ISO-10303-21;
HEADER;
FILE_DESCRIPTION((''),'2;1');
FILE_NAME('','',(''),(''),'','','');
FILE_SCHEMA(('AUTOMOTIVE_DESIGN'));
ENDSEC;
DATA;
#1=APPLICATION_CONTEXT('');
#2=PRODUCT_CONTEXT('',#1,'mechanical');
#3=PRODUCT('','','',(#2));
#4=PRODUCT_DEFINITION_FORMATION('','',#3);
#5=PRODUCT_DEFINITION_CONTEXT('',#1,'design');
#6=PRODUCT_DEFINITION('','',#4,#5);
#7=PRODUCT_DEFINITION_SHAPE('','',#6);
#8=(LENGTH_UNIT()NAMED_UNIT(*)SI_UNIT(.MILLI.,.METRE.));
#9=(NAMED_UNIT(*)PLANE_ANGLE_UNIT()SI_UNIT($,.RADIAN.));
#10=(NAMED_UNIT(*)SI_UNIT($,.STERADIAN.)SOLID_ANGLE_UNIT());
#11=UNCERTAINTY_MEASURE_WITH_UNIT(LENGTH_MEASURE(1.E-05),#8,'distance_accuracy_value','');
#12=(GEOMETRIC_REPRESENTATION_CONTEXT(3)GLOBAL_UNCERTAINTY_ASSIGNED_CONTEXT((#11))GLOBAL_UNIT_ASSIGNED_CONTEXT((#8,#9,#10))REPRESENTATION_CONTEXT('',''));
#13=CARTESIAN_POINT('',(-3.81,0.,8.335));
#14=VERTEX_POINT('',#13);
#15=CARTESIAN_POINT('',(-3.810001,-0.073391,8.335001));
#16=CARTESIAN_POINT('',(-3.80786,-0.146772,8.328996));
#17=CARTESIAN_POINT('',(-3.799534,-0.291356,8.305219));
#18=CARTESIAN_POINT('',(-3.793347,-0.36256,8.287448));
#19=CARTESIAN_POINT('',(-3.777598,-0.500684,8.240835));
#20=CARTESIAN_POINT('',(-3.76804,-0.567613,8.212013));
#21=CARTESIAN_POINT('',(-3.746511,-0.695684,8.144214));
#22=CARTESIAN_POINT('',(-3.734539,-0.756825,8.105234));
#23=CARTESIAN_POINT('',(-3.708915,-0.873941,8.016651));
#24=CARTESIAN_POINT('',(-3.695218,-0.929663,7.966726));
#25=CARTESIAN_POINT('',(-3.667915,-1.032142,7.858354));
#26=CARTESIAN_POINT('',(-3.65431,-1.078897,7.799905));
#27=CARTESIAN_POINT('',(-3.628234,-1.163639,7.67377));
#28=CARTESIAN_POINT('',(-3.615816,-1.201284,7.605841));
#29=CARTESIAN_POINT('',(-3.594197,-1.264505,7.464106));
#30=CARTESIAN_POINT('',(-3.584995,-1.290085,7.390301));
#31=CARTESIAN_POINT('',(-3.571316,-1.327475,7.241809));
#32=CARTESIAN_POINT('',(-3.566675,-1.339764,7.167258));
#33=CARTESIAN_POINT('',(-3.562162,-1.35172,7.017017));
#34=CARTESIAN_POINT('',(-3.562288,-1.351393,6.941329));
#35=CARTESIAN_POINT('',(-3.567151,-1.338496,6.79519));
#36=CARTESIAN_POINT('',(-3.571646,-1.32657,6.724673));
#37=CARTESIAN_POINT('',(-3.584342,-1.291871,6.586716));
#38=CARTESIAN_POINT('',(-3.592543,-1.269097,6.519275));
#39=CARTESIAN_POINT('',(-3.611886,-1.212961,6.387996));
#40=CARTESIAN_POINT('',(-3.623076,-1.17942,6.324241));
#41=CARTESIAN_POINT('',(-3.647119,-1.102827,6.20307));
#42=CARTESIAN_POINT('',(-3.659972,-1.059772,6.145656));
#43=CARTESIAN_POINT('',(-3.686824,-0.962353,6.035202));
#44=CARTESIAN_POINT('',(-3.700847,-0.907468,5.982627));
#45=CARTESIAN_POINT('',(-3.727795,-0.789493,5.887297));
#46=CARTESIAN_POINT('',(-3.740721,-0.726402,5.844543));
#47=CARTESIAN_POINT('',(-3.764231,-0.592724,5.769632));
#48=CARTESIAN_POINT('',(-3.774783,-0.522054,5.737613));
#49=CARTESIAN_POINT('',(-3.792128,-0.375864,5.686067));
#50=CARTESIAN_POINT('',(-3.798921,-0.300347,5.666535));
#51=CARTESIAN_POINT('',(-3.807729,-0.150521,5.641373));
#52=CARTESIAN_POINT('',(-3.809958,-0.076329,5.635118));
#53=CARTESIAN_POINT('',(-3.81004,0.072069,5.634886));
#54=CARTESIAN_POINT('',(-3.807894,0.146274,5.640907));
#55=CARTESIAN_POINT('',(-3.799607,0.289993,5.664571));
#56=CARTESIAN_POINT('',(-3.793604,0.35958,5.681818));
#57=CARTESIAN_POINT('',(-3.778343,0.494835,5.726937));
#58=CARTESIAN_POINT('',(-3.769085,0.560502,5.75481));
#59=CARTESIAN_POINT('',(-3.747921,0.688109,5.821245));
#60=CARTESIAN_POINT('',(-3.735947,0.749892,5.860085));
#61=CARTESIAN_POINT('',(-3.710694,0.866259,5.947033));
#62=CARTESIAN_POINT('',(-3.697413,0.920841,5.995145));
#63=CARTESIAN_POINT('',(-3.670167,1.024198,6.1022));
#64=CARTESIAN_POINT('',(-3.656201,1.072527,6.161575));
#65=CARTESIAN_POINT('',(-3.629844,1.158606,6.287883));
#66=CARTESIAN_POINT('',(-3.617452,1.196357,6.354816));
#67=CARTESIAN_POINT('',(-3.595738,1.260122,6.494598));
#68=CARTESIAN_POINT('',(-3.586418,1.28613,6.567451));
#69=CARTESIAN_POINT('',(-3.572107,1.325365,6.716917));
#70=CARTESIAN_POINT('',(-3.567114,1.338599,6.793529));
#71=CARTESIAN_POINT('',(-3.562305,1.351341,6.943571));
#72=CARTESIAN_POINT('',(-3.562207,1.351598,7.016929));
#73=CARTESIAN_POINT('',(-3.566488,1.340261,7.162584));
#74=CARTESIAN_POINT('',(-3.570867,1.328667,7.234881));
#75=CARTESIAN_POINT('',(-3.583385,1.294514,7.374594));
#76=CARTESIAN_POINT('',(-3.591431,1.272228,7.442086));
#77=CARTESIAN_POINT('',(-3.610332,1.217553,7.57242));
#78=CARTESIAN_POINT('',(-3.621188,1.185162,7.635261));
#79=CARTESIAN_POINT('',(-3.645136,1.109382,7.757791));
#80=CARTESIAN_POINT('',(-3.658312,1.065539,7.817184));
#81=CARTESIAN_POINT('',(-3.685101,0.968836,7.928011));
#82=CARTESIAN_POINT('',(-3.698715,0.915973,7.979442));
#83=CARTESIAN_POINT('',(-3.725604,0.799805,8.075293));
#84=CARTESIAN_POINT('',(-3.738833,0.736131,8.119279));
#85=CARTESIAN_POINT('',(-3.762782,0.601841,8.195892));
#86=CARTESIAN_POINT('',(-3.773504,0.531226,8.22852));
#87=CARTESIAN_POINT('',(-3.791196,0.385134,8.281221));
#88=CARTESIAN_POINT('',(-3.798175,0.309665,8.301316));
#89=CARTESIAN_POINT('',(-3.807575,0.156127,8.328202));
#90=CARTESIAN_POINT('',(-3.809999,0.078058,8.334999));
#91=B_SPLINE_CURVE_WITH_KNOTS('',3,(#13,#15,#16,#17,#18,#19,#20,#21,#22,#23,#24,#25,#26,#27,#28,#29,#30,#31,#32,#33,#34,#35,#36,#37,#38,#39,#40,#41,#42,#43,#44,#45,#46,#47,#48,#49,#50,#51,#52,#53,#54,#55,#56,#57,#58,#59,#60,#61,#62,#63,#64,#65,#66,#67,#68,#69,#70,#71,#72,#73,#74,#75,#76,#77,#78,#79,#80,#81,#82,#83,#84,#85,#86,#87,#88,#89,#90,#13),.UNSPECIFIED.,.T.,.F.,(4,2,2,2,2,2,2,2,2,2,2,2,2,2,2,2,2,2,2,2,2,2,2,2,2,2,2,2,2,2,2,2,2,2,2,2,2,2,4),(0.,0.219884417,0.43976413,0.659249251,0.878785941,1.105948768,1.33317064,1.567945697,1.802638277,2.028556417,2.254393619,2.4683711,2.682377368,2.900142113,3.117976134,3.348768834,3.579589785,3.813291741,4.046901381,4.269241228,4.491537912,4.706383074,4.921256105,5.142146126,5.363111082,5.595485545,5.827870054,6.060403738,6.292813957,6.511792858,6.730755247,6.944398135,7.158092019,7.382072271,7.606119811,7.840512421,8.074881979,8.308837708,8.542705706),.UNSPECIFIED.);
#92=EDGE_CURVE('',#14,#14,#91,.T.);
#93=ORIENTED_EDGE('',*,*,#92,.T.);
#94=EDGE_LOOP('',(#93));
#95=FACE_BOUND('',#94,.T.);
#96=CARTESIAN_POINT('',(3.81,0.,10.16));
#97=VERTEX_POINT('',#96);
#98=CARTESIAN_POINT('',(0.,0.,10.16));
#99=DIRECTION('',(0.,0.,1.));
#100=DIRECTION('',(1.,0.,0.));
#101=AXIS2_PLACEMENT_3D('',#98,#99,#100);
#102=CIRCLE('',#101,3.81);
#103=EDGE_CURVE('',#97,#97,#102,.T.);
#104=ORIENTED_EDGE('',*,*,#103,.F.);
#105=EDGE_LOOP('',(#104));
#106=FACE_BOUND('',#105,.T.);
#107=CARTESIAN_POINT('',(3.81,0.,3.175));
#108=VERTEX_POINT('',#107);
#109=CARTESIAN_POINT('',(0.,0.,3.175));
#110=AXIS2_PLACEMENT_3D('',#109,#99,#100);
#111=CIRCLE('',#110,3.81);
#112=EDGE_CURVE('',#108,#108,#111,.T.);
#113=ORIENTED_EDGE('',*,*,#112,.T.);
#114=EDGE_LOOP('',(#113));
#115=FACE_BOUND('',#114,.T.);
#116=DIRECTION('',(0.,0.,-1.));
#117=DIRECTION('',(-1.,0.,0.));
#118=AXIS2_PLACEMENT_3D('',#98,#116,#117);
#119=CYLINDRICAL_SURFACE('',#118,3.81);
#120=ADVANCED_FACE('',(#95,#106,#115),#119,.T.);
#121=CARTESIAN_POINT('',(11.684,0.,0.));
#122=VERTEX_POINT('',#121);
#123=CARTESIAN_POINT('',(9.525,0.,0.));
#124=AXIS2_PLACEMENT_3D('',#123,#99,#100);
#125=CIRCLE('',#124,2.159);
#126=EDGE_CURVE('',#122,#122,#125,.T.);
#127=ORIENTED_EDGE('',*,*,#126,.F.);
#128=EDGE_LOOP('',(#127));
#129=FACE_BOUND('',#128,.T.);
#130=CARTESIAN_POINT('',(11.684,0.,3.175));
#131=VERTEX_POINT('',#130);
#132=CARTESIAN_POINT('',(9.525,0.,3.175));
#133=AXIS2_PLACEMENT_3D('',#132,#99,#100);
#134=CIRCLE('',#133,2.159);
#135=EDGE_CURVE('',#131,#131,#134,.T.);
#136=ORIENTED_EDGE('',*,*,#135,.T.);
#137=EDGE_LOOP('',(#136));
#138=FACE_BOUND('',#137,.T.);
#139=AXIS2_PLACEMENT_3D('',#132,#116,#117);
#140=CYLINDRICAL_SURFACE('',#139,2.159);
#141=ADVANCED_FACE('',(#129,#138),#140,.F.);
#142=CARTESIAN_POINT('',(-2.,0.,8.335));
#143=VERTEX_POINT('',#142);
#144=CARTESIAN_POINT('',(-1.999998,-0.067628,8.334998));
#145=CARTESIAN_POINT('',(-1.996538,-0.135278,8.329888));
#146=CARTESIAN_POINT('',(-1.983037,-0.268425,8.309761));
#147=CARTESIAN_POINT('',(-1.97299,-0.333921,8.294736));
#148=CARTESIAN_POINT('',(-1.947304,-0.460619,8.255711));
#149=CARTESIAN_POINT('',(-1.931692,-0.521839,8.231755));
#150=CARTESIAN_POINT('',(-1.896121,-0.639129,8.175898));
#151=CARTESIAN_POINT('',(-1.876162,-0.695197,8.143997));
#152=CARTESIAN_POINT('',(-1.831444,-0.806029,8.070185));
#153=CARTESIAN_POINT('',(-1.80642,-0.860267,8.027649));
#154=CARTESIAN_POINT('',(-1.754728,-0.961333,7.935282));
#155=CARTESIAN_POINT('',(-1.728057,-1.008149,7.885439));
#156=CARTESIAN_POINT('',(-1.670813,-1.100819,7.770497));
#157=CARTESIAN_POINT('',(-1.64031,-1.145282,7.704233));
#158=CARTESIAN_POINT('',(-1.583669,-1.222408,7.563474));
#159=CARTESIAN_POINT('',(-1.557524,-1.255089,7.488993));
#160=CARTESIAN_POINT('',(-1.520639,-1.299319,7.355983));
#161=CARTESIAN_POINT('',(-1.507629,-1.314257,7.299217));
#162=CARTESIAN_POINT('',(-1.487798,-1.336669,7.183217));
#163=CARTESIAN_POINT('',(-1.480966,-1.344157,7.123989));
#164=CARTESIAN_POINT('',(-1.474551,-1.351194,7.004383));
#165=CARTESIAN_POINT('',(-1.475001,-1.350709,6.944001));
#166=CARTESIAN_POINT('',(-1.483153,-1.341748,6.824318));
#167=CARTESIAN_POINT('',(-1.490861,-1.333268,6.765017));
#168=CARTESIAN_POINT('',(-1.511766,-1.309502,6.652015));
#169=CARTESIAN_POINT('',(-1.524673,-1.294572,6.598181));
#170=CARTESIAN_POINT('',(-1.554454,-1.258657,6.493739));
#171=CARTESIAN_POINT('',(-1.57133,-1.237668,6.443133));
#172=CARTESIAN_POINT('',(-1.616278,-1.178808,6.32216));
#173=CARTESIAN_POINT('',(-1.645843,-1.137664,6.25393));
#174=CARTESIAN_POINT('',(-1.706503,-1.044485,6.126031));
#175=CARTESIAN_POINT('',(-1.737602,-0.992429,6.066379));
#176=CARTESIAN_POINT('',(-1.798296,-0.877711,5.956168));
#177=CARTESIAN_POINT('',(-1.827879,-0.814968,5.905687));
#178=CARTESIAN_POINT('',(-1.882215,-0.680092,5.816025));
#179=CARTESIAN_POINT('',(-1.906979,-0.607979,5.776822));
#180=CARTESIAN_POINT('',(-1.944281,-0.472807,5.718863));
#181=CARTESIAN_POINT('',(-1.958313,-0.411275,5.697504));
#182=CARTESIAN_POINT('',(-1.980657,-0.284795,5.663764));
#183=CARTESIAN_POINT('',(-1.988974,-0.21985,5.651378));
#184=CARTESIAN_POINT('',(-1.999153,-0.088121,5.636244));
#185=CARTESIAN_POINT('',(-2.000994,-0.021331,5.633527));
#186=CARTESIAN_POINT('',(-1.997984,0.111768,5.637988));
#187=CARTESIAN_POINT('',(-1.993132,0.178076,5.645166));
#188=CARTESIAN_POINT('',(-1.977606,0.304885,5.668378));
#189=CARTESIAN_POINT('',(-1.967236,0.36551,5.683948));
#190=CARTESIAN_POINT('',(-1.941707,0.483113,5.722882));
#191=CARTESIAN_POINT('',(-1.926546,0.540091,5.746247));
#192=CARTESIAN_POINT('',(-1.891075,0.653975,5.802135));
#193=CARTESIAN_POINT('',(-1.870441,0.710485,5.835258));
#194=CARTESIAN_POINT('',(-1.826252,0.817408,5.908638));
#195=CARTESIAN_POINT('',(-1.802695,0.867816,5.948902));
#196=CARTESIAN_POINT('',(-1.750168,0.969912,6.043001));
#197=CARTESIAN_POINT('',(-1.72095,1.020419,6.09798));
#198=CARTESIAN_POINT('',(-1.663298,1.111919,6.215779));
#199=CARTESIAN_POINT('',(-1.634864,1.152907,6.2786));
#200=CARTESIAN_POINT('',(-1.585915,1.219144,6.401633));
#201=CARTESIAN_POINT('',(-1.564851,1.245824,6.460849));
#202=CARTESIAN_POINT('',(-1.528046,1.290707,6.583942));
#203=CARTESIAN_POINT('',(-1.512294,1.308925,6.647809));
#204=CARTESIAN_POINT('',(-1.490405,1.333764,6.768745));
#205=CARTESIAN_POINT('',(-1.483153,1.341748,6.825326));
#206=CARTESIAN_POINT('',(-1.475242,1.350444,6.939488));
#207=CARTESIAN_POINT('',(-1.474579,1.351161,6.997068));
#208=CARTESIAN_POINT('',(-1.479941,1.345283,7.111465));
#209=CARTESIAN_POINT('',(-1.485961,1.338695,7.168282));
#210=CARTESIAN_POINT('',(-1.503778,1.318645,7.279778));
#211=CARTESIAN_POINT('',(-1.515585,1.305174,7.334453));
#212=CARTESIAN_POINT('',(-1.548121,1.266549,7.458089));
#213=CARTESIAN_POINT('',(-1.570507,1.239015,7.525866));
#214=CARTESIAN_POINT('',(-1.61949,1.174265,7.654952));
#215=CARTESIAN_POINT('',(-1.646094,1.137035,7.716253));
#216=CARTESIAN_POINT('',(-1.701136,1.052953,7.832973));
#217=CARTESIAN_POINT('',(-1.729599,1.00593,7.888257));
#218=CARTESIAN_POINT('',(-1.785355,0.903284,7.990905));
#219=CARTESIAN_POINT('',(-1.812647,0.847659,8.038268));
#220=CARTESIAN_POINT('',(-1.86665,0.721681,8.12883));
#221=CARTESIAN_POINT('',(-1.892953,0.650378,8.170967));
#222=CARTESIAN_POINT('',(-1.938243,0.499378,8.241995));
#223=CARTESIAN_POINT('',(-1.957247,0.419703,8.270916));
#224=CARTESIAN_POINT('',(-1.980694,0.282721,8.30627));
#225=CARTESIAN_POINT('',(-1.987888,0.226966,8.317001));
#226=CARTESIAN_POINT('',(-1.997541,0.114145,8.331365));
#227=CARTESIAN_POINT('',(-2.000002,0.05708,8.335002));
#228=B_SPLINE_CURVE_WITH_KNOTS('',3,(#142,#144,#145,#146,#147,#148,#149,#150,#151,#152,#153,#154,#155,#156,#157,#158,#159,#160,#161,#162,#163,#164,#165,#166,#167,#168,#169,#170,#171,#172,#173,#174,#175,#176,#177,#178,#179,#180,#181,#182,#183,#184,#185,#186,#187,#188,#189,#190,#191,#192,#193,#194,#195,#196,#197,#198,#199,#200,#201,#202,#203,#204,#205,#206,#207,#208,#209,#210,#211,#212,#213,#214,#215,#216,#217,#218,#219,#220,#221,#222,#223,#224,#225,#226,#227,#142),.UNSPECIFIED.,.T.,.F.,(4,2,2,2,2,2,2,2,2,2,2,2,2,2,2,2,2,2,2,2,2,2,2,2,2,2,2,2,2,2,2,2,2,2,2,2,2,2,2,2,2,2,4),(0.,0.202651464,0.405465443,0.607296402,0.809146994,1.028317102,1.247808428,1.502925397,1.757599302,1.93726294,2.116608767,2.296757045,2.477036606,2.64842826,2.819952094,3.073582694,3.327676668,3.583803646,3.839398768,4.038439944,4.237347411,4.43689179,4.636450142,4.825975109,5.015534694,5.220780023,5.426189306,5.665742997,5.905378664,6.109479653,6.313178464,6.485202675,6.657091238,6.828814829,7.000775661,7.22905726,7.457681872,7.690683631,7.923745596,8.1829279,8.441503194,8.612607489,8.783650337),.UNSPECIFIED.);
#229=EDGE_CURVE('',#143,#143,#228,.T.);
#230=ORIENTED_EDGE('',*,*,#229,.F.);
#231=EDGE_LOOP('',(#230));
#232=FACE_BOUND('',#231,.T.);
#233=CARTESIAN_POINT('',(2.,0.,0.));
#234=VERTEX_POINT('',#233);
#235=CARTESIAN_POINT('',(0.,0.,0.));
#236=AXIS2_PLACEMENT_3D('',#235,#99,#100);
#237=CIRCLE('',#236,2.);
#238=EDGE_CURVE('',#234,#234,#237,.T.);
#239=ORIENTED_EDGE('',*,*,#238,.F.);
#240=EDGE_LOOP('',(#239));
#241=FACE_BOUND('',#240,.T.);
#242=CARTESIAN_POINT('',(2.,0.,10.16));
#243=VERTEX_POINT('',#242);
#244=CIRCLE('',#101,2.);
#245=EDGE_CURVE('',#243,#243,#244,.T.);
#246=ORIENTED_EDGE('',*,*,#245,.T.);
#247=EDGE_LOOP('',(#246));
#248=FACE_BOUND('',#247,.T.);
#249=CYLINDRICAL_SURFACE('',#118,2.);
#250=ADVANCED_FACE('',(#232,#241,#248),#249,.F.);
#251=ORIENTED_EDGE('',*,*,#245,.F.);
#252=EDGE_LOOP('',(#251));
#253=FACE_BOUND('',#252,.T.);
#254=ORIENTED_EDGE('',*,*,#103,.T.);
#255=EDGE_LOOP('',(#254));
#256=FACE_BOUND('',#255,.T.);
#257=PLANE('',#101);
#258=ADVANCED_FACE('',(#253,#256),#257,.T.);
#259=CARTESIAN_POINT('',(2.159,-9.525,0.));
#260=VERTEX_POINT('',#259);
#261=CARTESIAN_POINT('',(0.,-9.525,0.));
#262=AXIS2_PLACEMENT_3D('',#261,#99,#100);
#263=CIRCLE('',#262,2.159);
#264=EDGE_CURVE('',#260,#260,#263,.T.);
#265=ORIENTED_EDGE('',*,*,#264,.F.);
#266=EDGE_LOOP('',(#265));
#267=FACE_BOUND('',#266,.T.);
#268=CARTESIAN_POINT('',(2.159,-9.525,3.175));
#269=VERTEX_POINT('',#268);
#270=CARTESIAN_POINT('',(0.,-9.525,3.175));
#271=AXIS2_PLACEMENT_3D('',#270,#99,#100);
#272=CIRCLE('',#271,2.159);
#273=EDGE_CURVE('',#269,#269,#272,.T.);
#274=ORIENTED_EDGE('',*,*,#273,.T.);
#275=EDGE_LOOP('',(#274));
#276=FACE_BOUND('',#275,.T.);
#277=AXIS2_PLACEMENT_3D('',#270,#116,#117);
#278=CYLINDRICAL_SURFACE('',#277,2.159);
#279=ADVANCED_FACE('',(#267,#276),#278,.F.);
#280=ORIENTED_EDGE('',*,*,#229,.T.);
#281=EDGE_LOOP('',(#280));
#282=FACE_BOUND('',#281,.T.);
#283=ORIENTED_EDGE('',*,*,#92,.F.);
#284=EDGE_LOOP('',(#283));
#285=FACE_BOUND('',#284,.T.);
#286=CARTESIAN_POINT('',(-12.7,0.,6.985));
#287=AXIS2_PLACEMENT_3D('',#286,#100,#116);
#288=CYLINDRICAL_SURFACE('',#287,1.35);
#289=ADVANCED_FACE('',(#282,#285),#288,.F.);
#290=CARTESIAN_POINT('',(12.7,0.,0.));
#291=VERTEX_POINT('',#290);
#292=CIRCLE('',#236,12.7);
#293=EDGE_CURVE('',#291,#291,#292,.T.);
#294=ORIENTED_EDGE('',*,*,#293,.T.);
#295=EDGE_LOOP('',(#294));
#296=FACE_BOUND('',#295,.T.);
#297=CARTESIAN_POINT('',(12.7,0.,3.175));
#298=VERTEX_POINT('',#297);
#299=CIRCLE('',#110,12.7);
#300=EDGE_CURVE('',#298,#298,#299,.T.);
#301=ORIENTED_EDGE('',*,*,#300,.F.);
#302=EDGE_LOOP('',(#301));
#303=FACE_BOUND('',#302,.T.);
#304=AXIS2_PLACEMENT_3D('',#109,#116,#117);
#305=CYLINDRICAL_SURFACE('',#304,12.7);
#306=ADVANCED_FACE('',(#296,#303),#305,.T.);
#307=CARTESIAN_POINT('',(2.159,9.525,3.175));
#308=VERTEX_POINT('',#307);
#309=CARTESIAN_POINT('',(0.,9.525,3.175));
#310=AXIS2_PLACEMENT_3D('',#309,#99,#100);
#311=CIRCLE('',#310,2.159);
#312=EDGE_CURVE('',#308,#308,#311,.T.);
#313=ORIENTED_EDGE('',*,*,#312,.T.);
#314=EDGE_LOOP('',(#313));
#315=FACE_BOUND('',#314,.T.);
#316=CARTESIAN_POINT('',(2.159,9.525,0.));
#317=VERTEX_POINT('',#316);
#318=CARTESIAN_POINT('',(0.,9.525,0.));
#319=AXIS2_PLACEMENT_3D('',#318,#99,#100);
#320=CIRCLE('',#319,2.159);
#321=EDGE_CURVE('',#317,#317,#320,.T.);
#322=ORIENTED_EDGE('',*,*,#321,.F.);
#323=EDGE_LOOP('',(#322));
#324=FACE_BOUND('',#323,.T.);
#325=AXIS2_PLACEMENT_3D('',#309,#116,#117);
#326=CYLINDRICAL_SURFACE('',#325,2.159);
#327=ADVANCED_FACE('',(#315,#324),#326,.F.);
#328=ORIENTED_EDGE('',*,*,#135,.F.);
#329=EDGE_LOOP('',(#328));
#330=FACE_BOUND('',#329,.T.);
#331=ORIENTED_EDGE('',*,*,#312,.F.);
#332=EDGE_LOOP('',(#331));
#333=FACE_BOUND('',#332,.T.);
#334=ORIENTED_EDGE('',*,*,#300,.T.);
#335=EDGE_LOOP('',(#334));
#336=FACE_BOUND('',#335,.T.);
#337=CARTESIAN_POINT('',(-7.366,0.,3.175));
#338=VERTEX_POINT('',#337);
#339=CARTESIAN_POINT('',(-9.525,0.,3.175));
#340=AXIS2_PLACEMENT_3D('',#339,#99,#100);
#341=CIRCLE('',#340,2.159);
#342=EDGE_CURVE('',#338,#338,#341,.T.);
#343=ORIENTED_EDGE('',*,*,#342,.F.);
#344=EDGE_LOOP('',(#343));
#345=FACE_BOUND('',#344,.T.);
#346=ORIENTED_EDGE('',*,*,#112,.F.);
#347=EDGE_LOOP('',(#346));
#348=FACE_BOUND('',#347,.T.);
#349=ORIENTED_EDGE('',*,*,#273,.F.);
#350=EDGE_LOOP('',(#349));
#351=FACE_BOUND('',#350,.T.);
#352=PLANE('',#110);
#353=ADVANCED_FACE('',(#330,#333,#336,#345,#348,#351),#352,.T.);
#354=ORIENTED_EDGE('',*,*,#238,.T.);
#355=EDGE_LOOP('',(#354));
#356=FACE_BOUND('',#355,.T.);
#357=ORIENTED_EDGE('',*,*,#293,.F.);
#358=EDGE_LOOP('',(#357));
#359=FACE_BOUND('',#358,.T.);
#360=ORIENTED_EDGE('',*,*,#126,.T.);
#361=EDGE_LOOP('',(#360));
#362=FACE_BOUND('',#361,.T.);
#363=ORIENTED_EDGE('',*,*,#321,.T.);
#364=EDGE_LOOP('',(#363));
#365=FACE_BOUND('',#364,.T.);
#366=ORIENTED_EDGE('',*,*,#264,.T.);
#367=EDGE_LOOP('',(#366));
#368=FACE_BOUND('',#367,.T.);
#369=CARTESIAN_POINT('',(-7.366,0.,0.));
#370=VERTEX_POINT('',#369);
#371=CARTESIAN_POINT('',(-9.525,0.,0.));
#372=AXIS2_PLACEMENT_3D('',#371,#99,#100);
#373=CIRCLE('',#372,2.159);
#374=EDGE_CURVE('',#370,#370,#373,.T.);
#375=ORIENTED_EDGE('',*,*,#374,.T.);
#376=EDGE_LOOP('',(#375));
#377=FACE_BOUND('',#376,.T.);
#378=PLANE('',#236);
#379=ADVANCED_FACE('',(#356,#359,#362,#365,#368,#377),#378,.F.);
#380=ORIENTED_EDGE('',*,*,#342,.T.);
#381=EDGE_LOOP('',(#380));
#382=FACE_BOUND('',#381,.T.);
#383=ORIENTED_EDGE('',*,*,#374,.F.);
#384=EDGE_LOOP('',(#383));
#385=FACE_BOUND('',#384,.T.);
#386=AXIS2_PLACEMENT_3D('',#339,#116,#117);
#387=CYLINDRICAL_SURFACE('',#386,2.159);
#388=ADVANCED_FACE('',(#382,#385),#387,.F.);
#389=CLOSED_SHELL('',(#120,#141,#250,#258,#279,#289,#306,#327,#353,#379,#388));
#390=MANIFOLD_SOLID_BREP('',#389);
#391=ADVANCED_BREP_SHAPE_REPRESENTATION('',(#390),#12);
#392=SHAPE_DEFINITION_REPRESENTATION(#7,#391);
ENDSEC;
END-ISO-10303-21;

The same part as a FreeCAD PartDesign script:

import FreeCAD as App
import Part
import Sketcher
from FreeCAD import Vector
Q = App.Units.Quantity

doc = App.newDocument("Part")
body = doc.addObject("PartDesign::Body", "Body")

sketch1 = body.newObject("Sketcher::SketchObject", "Sketch")
sketch1.AttachmentSupport = (doc.getObject("XY_Plane"), [""])
sketch1.MapMode = "FlatFace"
sketch1.addGeometry([
    Part.Circle(Vector(0, 0, 0), Vector(0, 0, 1), 12.7),
    Part.Circle(Vector(0, -9.525, 0), Vector(0, 0, 1), 2.159),
    Part.Circle(Vector(-9.525, 0, 0), Vector(0, 0, 1), 2.159),
    Part.Circle(Vector(0, 0, 0), Vector(0, 0, 1), 3.81),
    Part.Circle(Vector(9.525, 0, 0), Vector(0, 0, 1), 2.159),
    Part.Circle(Vector(0, 9.525, 0), Vector(0, 0, 1), 2.159),
], False)
sketch1.addConstraint([
    Sketcher.Constraint("Coincident", 0, 3, -1, 1),
    Sketcher.Constraint("Coincident", 3, 3, -1, 1),
    Sketcher.Constraint("Equal", 1, 2),
    Sketcher.Constraint("Equal", 2, 4),
    Sketcher.Constraint("Equal", 4, 5),
    Sketcher.Constraint("Symmetric", 2, 3, 4, 3, -1, 1),
    Sketcher.Constraint("Symmetric", 1, 3, 5, 3, -1, 1),
    Sketcher.Constraint("PointOnObject", 1, 3, -2),
    Sketcher.Constraint("PointOnObject", 2, 3, -1),
    Sketcher.Constraint("Diameter", 0, Q("1 in")),
    Sketcher.Constraint("Diameter", 3, Q("0.3 in")),
    Sketcher.Constraint("Diameter", 1, Q("0.17 in")),
    Sketcher.Constraint("DistanceX", 2, 3, 4, 3, Q("0.75 in")),
    Sketcher.Constraint("DistanceY", 1, 3, 5, 3, Q("0.75 in")),
])
pad1 = body.newObject("PartDesign::Pad", "Pad")
pad1.Profile = sketch1
pad1.Length = Q("0.125 in")

sketch2 = body.newObject("Sketcher::SketchObject", "Sketch001")
sketch2.AttachmentSupport = (doc.getObject("XY_Plane"), [""])
sketch2.MapMode = "FlatFace"
sketch2.addGeometry([
    Part.Circle(Vector(0, 0, 0), Vector(0, 0, 1), 3.81),
    Part.Circle(Vector(0, 0, 0), Vector(0, 0, 1), 2),
], False)
sketch2.addConstraint([
    Sketcher.Constraint("Coincident", 0, 3, -1, 1),
    Sketcher.Constraint("Coincident", 1, 3, -1, 1),
    Sketcher.Constraint("Diameter", 0, Q("0.3 in")),
    Sketcher.Constraint("Diameter", 1, Q("4 mm")),
])
pad2 = body.newObject("PartDesign::Pad", "Pad001")
pad2.Profile = sketch2
pad2.Length = Q("0.4 in")

sketch3 = body.newObject("Sketcher::SketchObject", "Sketch002")
sketch3.AttachmentSupport = (doc.getObject("YZ_Plane"), [""])
sketch3.MapMode = "FlatFace"
sketch3.addGeometry(Part.Circle(Vector(0, 6.985, 0), Vector(0, 0, 1), 1.35), False)
sketch3.addConstraint([
    Sketcher.Constraint("PointOnObject", 0, 3, -2),
    Sketcher.Constraint("Diameter", 0, Q("2.7 mm")),
    Sketcher.Constraint("DistanceY", -1, 1, 0, 3, Q("0.275 in")),
])
pocket1 = body.newObject("PartDesign::Pocket", "Pocket")
pocket1.Profile = sketch3
pocket1.Length = Q("0.5 in")

doc.recompute()
